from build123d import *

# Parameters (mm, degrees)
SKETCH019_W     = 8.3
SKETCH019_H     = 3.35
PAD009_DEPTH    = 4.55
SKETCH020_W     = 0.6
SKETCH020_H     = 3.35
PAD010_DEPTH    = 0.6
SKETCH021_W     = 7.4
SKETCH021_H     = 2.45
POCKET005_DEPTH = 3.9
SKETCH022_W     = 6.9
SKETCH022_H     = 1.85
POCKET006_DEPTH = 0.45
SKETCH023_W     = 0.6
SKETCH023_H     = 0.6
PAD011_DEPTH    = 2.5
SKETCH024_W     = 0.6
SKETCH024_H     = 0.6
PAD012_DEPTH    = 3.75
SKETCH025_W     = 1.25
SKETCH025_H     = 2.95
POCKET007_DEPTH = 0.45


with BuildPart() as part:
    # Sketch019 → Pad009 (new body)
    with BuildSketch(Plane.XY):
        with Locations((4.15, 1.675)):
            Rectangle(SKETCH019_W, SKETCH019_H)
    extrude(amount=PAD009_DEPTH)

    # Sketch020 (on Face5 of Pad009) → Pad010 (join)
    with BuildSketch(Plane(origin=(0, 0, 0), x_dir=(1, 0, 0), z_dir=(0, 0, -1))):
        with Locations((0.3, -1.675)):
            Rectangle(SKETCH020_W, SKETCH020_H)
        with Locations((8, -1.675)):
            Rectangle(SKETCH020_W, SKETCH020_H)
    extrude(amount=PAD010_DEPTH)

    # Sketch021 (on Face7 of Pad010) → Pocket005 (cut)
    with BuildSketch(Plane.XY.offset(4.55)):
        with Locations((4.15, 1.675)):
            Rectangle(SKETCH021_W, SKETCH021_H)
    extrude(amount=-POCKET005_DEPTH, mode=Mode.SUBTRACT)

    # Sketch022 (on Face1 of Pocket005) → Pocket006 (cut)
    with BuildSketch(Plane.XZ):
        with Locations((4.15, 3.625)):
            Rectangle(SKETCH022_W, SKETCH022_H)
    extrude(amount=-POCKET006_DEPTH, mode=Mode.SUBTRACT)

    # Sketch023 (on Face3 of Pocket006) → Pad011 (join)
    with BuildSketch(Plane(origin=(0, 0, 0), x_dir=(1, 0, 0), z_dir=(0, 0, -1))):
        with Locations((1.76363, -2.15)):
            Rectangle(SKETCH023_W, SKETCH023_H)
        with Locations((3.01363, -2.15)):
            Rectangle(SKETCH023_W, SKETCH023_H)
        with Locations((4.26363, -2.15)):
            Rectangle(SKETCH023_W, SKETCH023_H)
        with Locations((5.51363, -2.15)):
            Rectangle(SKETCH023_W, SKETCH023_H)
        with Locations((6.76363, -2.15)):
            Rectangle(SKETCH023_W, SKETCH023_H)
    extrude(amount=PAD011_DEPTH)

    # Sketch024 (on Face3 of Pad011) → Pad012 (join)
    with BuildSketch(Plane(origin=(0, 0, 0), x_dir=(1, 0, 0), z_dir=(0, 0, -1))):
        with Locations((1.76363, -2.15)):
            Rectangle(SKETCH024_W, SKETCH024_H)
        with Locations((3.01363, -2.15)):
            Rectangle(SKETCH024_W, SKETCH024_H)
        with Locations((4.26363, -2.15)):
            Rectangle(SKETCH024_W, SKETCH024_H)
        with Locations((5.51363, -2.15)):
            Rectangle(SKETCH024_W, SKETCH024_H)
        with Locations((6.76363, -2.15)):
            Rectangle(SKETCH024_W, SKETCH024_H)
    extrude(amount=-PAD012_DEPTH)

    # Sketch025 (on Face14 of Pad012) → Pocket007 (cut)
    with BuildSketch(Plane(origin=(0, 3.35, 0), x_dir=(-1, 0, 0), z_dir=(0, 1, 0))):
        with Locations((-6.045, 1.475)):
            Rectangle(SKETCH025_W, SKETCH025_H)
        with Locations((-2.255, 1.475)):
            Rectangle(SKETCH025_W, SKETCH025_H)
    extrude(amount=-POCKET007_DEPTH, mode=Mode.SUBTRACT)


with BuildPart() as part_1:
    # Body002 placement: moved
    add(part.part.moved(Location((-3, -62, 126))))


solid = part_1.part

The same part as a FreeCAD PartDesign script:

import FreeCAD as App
import Part
import Sketcher

V = App.Vector
Q = App.Units.Quantity


def add_polygon(sketch, points):
    """Adds a closed chain of lines whose ends are joined by coincident constraints."""
    first, n = sketch.GeometryCount, len(points)
    for a, b in zip(points, points[1:] + points[:1]):
        sketch.addGeometry(Part.LineSegment(App.Vector(*a, 0), App.Vector(*b, 0)), False)
    for i in range(n):
        sketch.addConstraint(Sketcher.Constraint("Coincident", first + i, 2, first + (i + 1) % n, 1))

doc = App.newDocument("Part")
body = doc.addObject("PartDesign::Body", "Body")

sketch1 = body.newObject("Sketcher::SketchObject", "Sketch")
sketch1.AttachmentSupport = (doc.getObject("XY_Plane"), [""])
sketch1.MapMode = "FlatFace"
add_polygon(sketch1, [(0, 3.4), (0, 0), (8.3, 0), (8.3, 3.4)])
sketch1.addConstraint(Sketcher.Constraint("Vertical", 0))
sketch1.addConstraint(Sketcher.Constraint("Horizontal", 1))
sketch1.addConstraint(Sketcher.Constraint("Vertical", 2))
sketch1.addConstraint(Sketcher.Constraint("Horizontal", 3))
sketch1.addConstraint(Sketcher.Constraint("Coincident", 0, 2, -1, 1))
sketch1.addConstraint(Sketcher.Constraint("DistanceX", 1, 1, 1, 2, Q("8.3 mm")))
sketch1.addConstraint(Sketcher.Constraint("DistanceY", 0, 2, 0, 1, Q("3.35 mm")))
pad1 = body.newObject("PartDesign::Pad", "Pad")
pad1.Profile = sketch1
pad1.Length = 4.55

sketch2 = body.newObject("Sketcher::SketchObject", "Sketch001")
sketch2.AttachmentSupport = (doc.getObject("XY_Plane"), [""])
sketch2.MapMode = "FlatFace"
add_polygon(sketch2, [(0, 0), (0, 3.4), (0.6, 3.4), (0.6, 0)])
add_polygon(sketch2, [(7.7, 0), (7.7, 3.4), (8.3, 3.4), (8.3, 0)])
sketch2.addConstraint(Sketcher.Constraint("Vertical", 0))
sketch2.addConstraint(Sketcher.Constraint("Horizontal", 1))
sketch2.addConstraint(Sketcher.Constraint("Vertical", 2))
sketch2.addConstraint(Sketcher.Constraint("Horizontal", 3))
sketch2.addConstraint(Sketcher.Constraint("Vertical", 4))
sketch2.addConstraint(Sketcher.Constraint("Horizontal", 5))
sketch2.addConstraint(Sketcher.Constraint("Vertical", 6))
sketch2.addConstraint(Sketcher.Constraint("Horizontal", 7))
sketch2.addConstraint(Sketcher.Constraint("Coincident", 3, 2, -1, 1))
sketch2.addConstraint(Sketcher.Constraint("PointOnObject", 6, 2, -1))
sketch2.addConstraint(Sketcher.Constraint("Horizontal", 1, 2, 4, 2))
sketch2.addConstraint(Sketcher.Constraint("Equal", 3, 5))
sketch2.addConstraint(Sketcher.Constraint("DistanceX", 1, 1, 1, 2, Q("0.6 mm")))
sketch2.addConstraint(Sketcher.Constraint("DistanceY", 0, 1, 0, 2, Q("3.35 mm")))
sketch2.addConstraint(Sketcher.Constraint("DistanceX", -1, 1, 4, 2, Q("7.7 mm")))
pad2 = body.newObject("PartDesign::Pad", "Pad001")
pad2.Profile = sketch2
pad2.Length = 0.6
pad2.Reversed = True

sketch3 = body.newObject("Sketcher::SketchObject", "Sketch002")
sketch3.AttachmentSupport = (doc.getObject("XY_Plane"), [""])
sketch3.MapMode = "FlatFace"
sketch3.AttachmentOffset = App.Placement(V(0, 0, 4.55), App.Rotation())
add_polygon(sketch3, [(0.5, 2.9), (0.5, 0.5), (7.8, 0.5), (7.8, 2.9)])
sketch3.addConstraint(Sketcher.Constraint("Vertical", 0))
sketch3.addConstraint(Sketcher.Constraint("Horizontal", 1))
sketch3.addConstraint(Sketcher.Constraint("Vertical", 2))
sketch3.addConstraint(Sketcher.Constraint("Horizontal", 3))
sketch3.addConstraint(Sketcher.Constraint("DistanceX", 1, 1, 1, 2, Q("7.4 mm")))
sketch3.addConstraint(Sketcher.Constraint("DistanceY", 0, 2, 0, 1, Q("2.45 mm")))
sketch3.addConstraint(Sketcher.Constraint("DistanceY", -1, 1, 2, 2, Q("2.9 mm")))
sketch3.addConstraint(Sketcher.Constraint("DistanceX", -1, 1, 0, 2, Q("0.45 mm")))
pocket1 = body.newObject("PartDesign::Pocket", "Pocket")
pocket1.Profile = sketch3
pocket1.Length = 3.9

sketch4 = body.newObject("Sketcher::SketchObject", "Sketch003")
sketch4.AttachmentSupport = (doc.getObject("XZ_Plane"), [""])
sketch4.MapMode = "FlatFace"
add_polygon(sketch4, [(0.7, 4.5), (0.7, 2.7), (7.6, 2.7), (7.6, 4.5)])
sketch4.addConstraint(Sketcher.Constraint("Vertical", 0))
sketch4.addConstraint(Sketcher.Constraint("Horizontal", 1))
sketch4.addConstraint(Sketcher.Constraint("Vertical", 2))
sketch4.addConstraint(Sketcher.Constraint("Horizontal", 3))
sketch4.addConstraint(Sketcher.Constraint("DistanceX", 1, 1, 1, 2, Q("6.9 mm")))
sketch4.addConstraint(Sketcher.Constraint("DistanceY", 0, 2, 0, 1, Q("1.85 mm")))
sketch4.addConstraint(Sketcher.Constraint("DistanceX", -1, 1, 0, 2, Q("0.7 mm")))
sketch4.addConstraint(Sketcher.Constraint("DistanceY", -1, 1, 0, 2, Q("2.7 mm")))
pocket2 = body.newObject("PartDesign::Pocket", "Pocket001")
pocket2.Profile = sketch4
pocket2.Length = 0.45

sketch5 = body.newObject("Sketcher::SketchObject", "Sketch004")
sketch5.AttachmentSupport = (doc.getObject("XY_Plane"), [""])
sketch5.MapMode = "FlatFace"
add_polygon(sketch5, [(1.5, 1.9), (1.5, 2.5), (2.1, 2.5), (2.1, 1.9)])
add_polygon(sketch5, [(2.7, 1.9), (2.7, 2.5), (3.3, 2.5), (3.3, 1.9)])
add_polygon(sketch5, [(4, 1.9), (4, 2.5), (4.6, 2.5), (4.6, 1.9)])
add_polygon(sketch5, [(5.2, 1.9), (5.2, 2.5), (5.8, 2.5), (5.8, 1.9)])
add_polygon(sketch5, [(6.5, 1.9), (6.5, 2.5), (7.1, 2.5), (7.1, 1.9)])
sketch5.addConstraint(Sketcher.Constraint("Vertical", 0))
sketch5.addConstraint(Sketcher.Constraint("Horizontal", 1))
sketch5.addConstraint(Sketcher.Constraint("Vertical", 2))
sketch5.addConstraint(Sketcher.Constraint("Horizontal", 3))
sketch5.addConstraint(Sketcher.Constraint("Vertical", 4))
sketch5.addConstraint(Sketcher.Constraint("Horizontal", 5))
sketch5.addConstraint(Sketcher.Constraint("Vertical", 6))
sketch5.addConstraint(Sketcher.Constraint("Horizontal", 7))
sketch5.addConstraint(Sketcher.Constraint("Vertical", 8))
sketch5.addConstraint(Sketcher.Constraint("Horizontal", 9))
sketch5.addConstraint(Sketcher.Constraint("Vertical", 10))
sketch5.addConstraint(Sketcher.Constraint("Horizontal", 11))
sketch5.addConstraint(Sketcher.Constraint("Vertical", 12))
sketch5.addConstraint(Sketcher.Constraint("Horizontal", 13))
sketch5.addConstraint(Sketcher.Constraint("Vertical", 14))
sketch5.addConstraint(Sketcher.Constraint("Horizontal", 15))
sketch5.addConstraint(Sketcher.Constraint("Vertical", 16))
sketch5.addConstraint(Sketcher.Constraint("Horizontal", 17))
sketch5.addConstraint(Sketcher.Constraint("Vertical", 18))
sketch5.addConstraint(Sketcher.Constraint("Horizontal", 19))
sketch5.addConstraint(Sketcher.Constraint("Horizontal", 1, 2, 4, 2))
sketch5.addConstraint(Sketcher.Constraint("Horizontal", 3, 2, 6, 2))
sketch5.addConstraint(Sketcher.Constraint("Horizontal", 5, 2, 8, 2))
sketch5.addConstraint(Sketcher.Constraint("Horizontal", 7, 2, 10, 2))
sketch5.addConstraint(Sketcher.Constraint("Horizontal", 9, 2, 12, 2))
sketch5.addConstraint(Sketcher.Constraint("Horizontal", 11, 2, 14, 2))
sketch5.addConstraint(Sketcher.Constraint("Horizontal", 13, 2, 16, 2))
sketch5.addConstraint(Sketcher.Constraint("Horizontal", 15, 2, 18, 2))
sketch5.addConstraint(Sketcher.Constraint("Equal", 3, 5))
sketch5.addConstraint(Sketcher.Constraint("Equal", 7, 9))
sketch5.addConstraint(Sketcher.Constraint("Equal", 11, 13))
sketch5.addConstraint(Sketcher.Constraint("Equal", 15, 17))
sketch5.addConstraint(Sketcher.Constraint("Equal", 19, 0))
sketch5.addConstraint(Sketcher.Constraint("DistanceX", 1, 1, 1, 2, Q("0.6 mm")))
sketch5.addConstraint(Sketcher.Constraint("DistanceX", 1, 2, 8, 2, Q("1.9 mm")))
sketch5.addConstraint(Sketcher.Constraint("DistanceX", 5, 2, 12, 2, Q("1.9 mm")))
sketch5.addConstraint(Sketcher.Constraint("DistanceX", 9, 2, 16, 2, Q("1.9 mm")))
sketch5.addConstraint(Sketcher.Constraint("DistanceY", -1, 1, 0, 2, Q("2.45 mm")))
sketch5.addConstraint(Sketcher.Constraint("DistanceX", 1, 2, 4, 2, Q("0.65 mm")))
sketch5.addConstraint(Sketcher.Constraint("DistanceX", -1, 1, 0, 2, Q("1.46363 mm")))
pad3 = body.newObject("PartDesign::Pad", "Pad002")
pad3.Profile = sketch5
pad3.Length = 2.5
pad3.Reversed = True

sketch6 = body.newObject("Sketcher::SketchObject", "Sketch005")
sketch6.AttachmentSupport = (doc.getObject("XY_Plane"), [""])
sketch6.MapMode = "FlatFace"
add_polygon(sketch6, [(1.5, 1.9), (1.5, 2.5), (2.1, 2.5), (2.1, 1.9)])
add_polygon(sketch6, [(2.7, 1.9), (2.7, 2.5), (3.3, 2.5), (3.3, 1.9)])
add_polygon(sketch6, [(4, 1.9), (4, 2.5), (4.6, 2.5), (4.6, 1.9)])
add_polygon(sketch6, [(5.2, 1.9), (5.2, 2.5), (5.8, 2.5), (5.8, 1.9)])
add_polygon(sketch6, [(6.5, 1.9), (6.5, 2.5), (7.1, 2.5), (7.1, 1.9)])
sketch6.addConstraint(Sketcher.Constraint("Vertical", 0))
sketch6.addConstraint(Sketcher.Constraint("Horizontal", 1))
sketch6.addConstraint(Sketcher.Constraint("Vertical", 2))
sketch6.addConstraint(Sketcher.Constraint("Horizontal", 3))
sketch6.addConstraint(Sketcher.Constraint("Vertical", 4))
sketch6.addConstraint(Sketcher.Constraint("Horizontal", 5))
sketch6.addConstraint(Sketcher.Constraint("Vertical", 6))
sketch6.addConstraint(Sketcher.Constraint("Horizontal", 7))
sketch6.addConstraint(Sketcher.Constraint("Vertical", 8))
sketch6.addConstraint(Sketcher.Constraint("Horizontal", 9))
sketch6.addConstraint(Sketcher.Constraint("Vertical", 10))
sketch6.addConstraint(Sketcher.Constraint("Horizontal", 11))
sketch6.addConstraint(Sketcher.Constraint("Vertical", 12))
sketch6.addConstraint(Sketcher.Constraint("Horizontal", 13))
sketch6.addConstraint(Sketcher.Constraint("Vertical", 14))
sketch6.addConstraint(Sketcher.Constraint("Horizontal", 15))
sketch6.addConstraint(Sketcher.Constraint("Vertical", 16))
sketch6.addConstraint(Sketcher.Constraint("Horizontal", 17))
sketch6.addConstraint(Sketcher.Constraint("Vertical", 18))
sketch6.addConstraint(Sketcher.Constraint("Horizontal", 19))
sketch6.addConstraint(Sketcher.Constraint("Horizontal", 1, 2, 4, 2))
sketch6.addConstraint(Sketcher.Constraint("Horizontal", 3, 2, 6, 2))
sketch6.addConstraint(Sketcher.Constraint("Horizontal", 5, 2, 8, 2))
sketch6.addConstraint(Sketcher.Constraint("Horizontal", 7, 2, 10, 2))
sketch6.addConstraint(Sketcher.Constraint("Horizontal", 9, 2, 12, 2))
sketch6.addConstraint(Sketcher.Constraint("Horizontal", 11, 2, 14, 2))
sketch6.addConstraint(Sketcher.Constraint("Horizontal", 13, 2, 16, 2))
sketch6.addConstraint(Sketcher.Constraint("Horizontal", 15, 2, 18, 2))
sketch6.addConstraint(Sketcher.Constraint("Equal", 3, 5))
sketch6.addConstraint(Sketcher.Constraint("Equal", 7, 9))
sketch6.addConstraint(Sketcher.Constraint("Equal", 11, 13))
sketch6.addConstraint(Sketcher.Constraint("Equal", 15, 17))
sketch6.addConstraint(Sketcher.Constraint("Equal", 19, 0))
sketch6.addConstraint(Sketcher.Constraint("DistanceX", 1, 1, 1, 2, Q("0.6 mm")))
sketch6.addConstraint(Sketcher.Constraint("DistanceX", 1, 2, 8, 2, Q("1.9 mm")))
sketch6.addConstraint(Sketcher.Constraint("DistanceX", 5, 2, 12, 2, Q("1.9 mm")))
sketch6.addConstraint(Sketcher.Constraint("DistanceX", 9, 2, 16, 2, Q("1.9 mm")))
sketch6.addConstraint(Sketcher.Constraint("DistanceY", -1, 1, 0, 2, Q("2.45 mm")))
sketch6.addConstraint(Sketcher.Constraint("DistanceX", 1, 2, 4, 2, Q("0.65 mm")))
sketch6.addConstraint(Sketcher.Constraint("DistanceX", -1, 1, 0, 2, Q("1.46363 mm")))
pad4 = body.newObject("PartDesign::Pad", "Pad003")
pad4.Profile = sketch6
pad4.Length = 3.75

sketch7 = body.newObject("Sketcher::SketchObject", "Sketch006")
sketch7.AttachmentSupport = (doc.getObject("XZ_Plane"), [""])
sketch7.MapMode = "FlatFace"
sketch7.AttachmentOffset = App.Placement(V(0, 0, -3.35), App.Rotation())
add_polygon(sketch7, [(6.7, 3), (6.7, 0), (5.4, 0), (5.4, 3)])
add_polygon(sketch7, [(2.9, 3), (2.9, 0), (1.6, 0), (1.6, 3)])
sketch7.addConstraint(Sketcher.Constraint("Vertical", 0))
sketch7.addConstraint(Sketcher.Constraint("Horizontal", 1))
sketch7.addConstraint(Sketcher.Constraint("Vertical", 2))
sketch7.addConstraint(Sketcher.Constraint("Horizontal", 3))
sketch7.addConstraint(Sketcher.Constraint("Vertical", 4))
sketch7.addConstraint(Sketcher.Constraint("Horizontal", 5))
sketch7.addConstraint(Sketcher.Constraint("Vertical", 6))
sketch7.addConstraint(Sketcher.Constraint("Horizontal", 7))
sketch7.addConstraint(Sketcher.Constraint("PointOnObject", 0, 2, -1))
sketch7.addConstraint(Sketcher.Constraint("PointOnObject", 4, 2, -1))
sketch7.addConstraint(Sketcher.Constraint("Horizontal", 3, 2, 6, 2))
sketch7.addConstraint(Sketcher.Constraint("Equal", 3, 5))
sketch7.addConstraint(Sketcher.Constraint("DistanceX", 1, 2, 1, 1, Q("1.25 mm")))
sketch7.addConstraint(Sketcher.Constraint("DistanceY", 0, 2, 0, 1, Q("2.95 mm")))
sketch7.addConstraint(Sketcher.Constraint("DistanceX", -1, 1, 0, 2, Q("6.67 mm")))
sketch7.addConstraint(Sketcher.Constraint("DistanceX", -1, 1, 4, 2, Q("2.88 mm")))
pocket3 = body.newObject("PartDesign::Pocket", "Pocket002")
pocket3.Profile = sketch7
pocket3.Length = 0.45
pocket3.Reversed = True
body2 = doc.addObject("PartDesign::Body", "Body001")
doc.recompute()

body.Placement = App.Placement(V(-3, -62, 126), App.Rotation(V(0, 0, 1), 0))
boolean = body2.newObject("PartDesign::Boolean", "Boolean")
boolean.Type = "Fuse"
boolean.addObjects([body])

doc.recompute()
